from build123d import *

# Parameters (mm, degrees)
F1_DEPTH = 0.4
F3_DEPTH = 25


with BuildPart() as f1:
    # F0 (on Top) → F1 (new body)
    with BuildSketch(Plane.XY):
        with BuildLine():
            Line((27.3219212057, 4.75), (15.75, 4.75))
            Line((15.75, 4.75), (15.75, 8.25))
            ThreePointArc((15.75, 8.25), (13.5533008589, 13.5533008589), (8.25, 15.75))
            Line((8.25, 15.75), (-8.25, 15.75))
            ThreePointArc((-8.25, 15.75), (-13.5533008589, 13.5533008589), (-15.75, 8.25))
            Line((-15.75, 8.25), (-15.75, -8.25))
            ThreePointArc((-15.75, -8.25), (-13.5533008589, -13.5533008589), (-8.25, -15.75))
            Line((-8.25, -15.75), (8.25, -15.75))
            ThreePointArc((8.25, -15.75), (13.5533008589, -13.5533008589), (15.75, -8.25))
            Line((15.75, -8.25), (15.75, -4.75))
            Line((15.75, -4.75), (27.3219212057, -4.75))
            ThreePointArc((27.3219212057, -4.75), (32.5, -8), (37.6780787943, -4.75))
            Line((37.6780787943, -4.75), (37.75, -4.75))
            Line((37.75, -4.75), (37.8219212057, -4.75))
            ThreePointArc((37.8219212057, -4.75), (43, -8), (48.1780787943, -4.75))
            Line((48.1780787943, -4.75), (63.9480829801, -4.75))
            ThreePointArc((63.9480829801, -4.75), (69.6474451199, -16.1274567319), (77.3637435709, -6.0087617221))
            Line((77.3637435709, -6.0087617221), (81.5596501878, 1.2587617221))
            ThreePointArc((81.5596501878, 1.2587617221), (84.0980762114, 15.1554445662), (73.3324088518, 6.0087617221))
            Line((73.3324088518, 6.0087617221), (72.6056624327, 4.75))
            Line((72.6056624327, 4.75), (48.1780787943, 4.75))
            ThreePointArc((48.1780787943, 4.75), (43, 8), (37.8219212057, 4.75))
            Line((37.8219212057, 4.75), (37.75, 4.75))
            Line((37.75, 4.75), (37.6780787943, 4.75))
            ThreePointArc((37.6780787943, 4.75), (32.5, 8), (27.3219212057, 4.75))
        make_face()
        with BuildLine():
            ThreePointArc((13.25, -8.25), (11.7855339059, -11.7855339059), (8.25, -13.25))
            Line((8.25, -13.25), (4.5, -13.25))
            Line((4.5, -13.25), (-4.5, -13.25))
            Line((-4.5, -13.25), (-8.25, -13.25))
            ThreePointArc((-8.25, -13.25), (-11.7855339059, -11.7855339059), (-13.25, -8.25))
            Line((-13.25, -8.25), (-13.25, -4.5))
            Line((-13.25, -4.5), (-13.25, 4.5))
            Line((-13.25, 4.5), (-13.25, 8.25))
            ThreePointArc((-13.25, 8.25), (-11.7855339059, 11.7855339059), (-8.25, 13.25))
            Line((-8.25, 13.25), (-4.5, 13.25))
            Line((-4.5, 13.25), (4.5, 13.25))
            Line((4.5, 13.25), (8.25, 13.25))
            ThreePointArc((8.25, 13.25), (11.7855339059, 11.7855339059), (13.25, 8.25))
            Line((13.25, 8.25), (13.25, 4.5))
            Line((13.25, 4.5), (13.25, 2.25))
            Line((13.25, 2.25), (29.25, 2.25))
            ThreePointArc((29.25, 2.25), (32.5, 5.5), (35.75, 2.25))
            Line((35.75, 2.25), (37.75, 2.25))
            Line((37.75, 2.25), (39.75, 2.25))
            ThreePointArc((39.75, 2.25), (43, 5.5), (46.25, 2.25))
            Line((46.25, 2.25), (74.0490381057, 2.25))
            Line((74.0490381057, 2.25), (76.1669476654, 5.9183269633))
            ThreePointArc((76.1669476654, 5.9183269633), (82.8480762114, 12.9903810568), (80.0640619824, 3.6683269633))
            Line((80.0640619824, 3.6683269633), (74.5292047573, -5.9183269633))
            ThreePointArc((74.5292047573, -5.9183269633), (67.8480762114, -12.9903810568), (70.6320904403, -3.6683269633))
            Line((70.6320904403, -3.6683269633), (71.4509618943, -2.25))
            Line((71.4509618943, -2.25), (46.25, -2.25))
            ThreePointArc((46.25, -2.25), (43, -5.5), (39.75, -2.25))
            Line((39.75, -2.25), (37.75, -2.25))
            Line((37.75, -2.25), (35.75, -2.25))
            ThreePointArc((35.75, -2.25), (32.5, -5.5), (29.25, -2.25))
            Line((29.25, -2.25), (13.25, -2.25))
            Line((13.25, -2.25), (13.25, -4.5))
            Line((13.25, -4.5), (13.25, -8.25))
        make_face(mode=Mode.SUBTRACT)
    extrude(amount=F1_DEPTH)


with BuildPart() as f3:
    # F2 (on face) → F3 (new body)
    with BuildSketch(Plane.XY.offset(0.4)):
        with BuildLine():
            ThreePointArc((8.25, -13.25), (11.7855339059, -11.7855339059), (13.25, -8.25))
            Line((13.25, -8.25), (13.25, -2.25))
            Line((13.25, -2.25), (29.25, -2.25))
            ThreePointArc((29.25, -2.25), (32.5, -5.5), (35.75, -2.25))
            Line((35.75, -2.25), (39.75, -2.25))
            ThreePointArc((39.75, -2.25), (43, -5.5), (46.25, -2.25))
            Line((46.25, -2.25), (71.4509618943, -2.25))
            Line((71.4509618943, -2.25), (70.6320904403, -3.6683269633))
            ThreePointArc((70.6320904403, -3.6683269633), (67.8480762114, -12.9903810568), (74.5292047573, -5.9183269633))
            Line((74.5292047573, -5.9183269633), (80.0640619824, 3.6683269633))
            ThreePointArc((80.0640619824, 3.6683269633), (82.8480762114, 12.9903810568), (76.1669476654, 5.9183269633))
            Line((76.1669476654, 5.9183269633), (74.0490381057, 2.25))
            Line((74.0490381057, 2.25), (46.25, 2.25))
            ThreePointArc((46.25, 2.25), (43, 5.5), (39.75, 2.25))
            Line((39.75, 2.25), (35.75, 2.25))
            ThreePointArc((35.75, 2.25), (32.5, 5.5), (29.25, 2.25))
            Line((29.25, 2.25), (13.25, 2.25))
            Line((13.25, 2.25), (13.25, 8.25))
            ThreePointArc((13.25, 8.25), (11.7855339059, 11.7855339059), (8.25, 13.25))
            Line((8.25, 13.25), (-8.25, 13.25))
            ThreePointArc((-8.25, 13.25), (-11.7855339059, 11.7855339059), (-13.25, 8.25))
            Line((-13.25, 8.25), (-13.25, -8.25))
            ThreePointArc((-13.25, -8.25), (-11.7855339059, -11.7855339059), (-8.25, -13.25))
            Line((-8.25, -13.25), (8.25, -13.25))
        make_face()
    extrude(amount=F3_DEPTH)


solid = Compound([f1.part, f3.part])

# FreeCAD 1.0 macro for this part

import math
import FreeCAD as App
import Part
import Sketcher

V = App.Vector
Q = App.Units.Quantity

doc = App.newDocument("Part")
body = doc.addObject("PartDesign::Body", "Body")

sketch1 = body.newObject("Sketcher::SketchObject", "Sketch")
sketch1.AttachmentSupport = (doc.getObject("XY_Plane"), [""])
sketch1.MapMode = "FlatFace"
sketch1.addGeometry([
    Part.LineSegment(V(27.32, 4.75, 0), V(15.75, 4.75, 0)),
    Part.LineSegment(V(15.75, 4.75, 0), V(15.75, 8.25, 0)),
    Part.ArcOfCircle(Part.Circle(V(8.25, 8.25, 0), V(0, 0, 1), 7.5), math.radians(0), math.radians(90)),
    Part.LineSegment(V(8.25, 15.75, 0), V(-8.25, 15.75, 0)),
    Part.ArcOfCircle(Part.Circle(V(-8.25, 8.25, 0), V(0, 0, 1), 7.5), math.radians(90), math.radians(180)),
    Part.LineSegment(V(-15.75, 8.25, 0), V(-15.75, -8.25, 0)),
    Part.ArcOfCircle(Part.Circle(V(-8.25, -8.25, 0), V(0, 0, 1), 7.5), math.radians(180), math.radians(270)),
    Part.LineSegment(V(-8.25, -15.75, 0), V(8.25, -15.75, 0)),
    Part.ArcOfCircle(Part.Circle(V(8.25, -8.25, 0), V(0, 0, 1), 7.5), math.radians(-90), math.radians(0)),
    Part.LineSegment(V(15.75, -8.25, 0), V(15.75, -4.75, 0)),
    Part.LineSegment(V(15.75, -4.75, 0), V(27.32, -4.75, 0)),
    Part.ArcOfCircle(Part.Circle(V(32.5, -2.25, 0), V(0, 0, 1), 5.75), math.radians(-154), math.radians(-26)),
    Part.LineSegment(V(37.68, -4.75, 0), V(37.82, -4.75, 0)),
    Part.ArcOfCircle(Part.Circle(V(43, -2.25, 0), V(0, 0, 1), 5.75), math.radians(-154), math.radians(-26)),
    Part.LineSegment(V(48.18, -4.75, 0), V(63.95, -4.75, 0)),
    Part.ArcOfCircle(Part.Circle(V(70.35, -8.66, 0), V(0, 0, 1), 7.5), math.radians(149), math.radians(381)),
    Part.LineSegment(V(77.36, -6.01, 0), V(81.56, 1.26, 0)),
    Part.ArcOfCircle(Part.Circle(V(80.35, 8.66, 0), V(0, 0, 1), 7.5), math.radians(-81), math.radians(201)),
    Part.LineSegment(V(73.33, 6.01, 0), V(72.61, 4.75, 0)),
    Part.LineSegment(V(72.61, 4.75, 0), V(48.18, 4.75, 0)),
    Part.ArcOfCircle(Part.Circle(V(43, 2.25, 0), V(0, 0, 1), 5.75), math.radians(26), math.radians(154)),
    Part.LineSegment(V(37.82, 4.75, 0), V(37.68, 4.75, 0)),
    Part.ArcOfCircle(Part.Circle(V(32.5, 2.25, 0), V(0, 0, 1), 5.75), math.radians(26), math.radians(154)),
    Part.LineSegment(V(13.25, -2.25, 0), V(13.25, -8.25, 0)),
    Part.ArcOfCircle(Part.Circle(V(8.25, -8.25, 0), V(0, 0, 1), 5), math.radians(-90), math.radians(0)),
    Part.LineSegment(V(8.25, -13.25, 0), V(-8.25, -13.25, 0)),
    Part.ArcOfCircle(Part.Circle(V(-8.25, -8.25, 0), V(0, 0, 1), 5), math.radians(180), math.radians(270)),
    Part.LineSegment(V(-13.25, -8.25, 0), V(-13.25, 8.25, 0)),
    Part.ArcOfCircle(Part.Circle(V(-8.25, 8.25, 0), V(0, 0, 1), 5), math.radians(90), math.radians(180)),
    Part.LineSegment(V(-8.25, 13.25, 0), V(8.25, 13.25, 0)),
    Part.ArcOfCircle(Part.Circle(V(8.25, 8.25, 0), V(0, 0, 1), 5), math.radians(0), math.radians(90)),
    Part.LineSegment(V(13.25, 8.25, 0), V(13.25, 2.25, 0)),
    Part.LineSegment(V(13.25, 2.25, 0), V(29.25, 2.25, 0)),
    Part.ArcOfCircle(Part.Circle(V(32.5, 2.25, 0), V(0, 0, 1), 3.25), math.radians(0), math.radians(180)),
    Part.LineSegment(V(35.75, 2.25, 0), V(39.75, 2.25, 0)),
    Part.ArcOfCircle(Part.Circle(V(43, 2.25, 0), V(0, 0, 1), 3.25), math.radians(0), math.radians(180)),
    Part.LineSegment(V(46.25, 2.25, 0), V(74.05, 2.25, 0)),
    Part.LineSegment(V(74.05, 2.25, 0), V(76.17, 5.92, 0)),
    Part.ArcOfCircle(Part.Circle(V(80.35, 8.66, 0), V(0, 0, 1), 5), math.radians(-93), math.radians(213)),
    Part.LineSegment(V(80.06, 3.67, 0), V(74.53, -5.92, 0)),
    Part.ArcOfCircle(Part.Circle(V(70.35, -8.66, 0), V(0, 0, 1), 5), math.radians(87), math.radians(393)),
    Part.LineSegment(V(70.63, -3.67, 0), V(71.45, -2.25, 0)),
    Part.LineSegment(V(71.45, -2.25, 0), V(46.25, -2.25, 0)),
    Part.ArcOfCircle(Part.Circle(V(43, -2.25, 0), V(0, 0, 1), 3.25), math.radians(180), math.radians(360)),
    Part.LineSegment(V(39.75, -2.25, 0), V(35.75, -2.25, 0)),
    Part.ArcOfCircle(Part.Circle(V(32.5, -2.25, 0), V(0, 0, 1), 3.25), math.radians(180), math.radians(360)),
    Part.LineSegment(V(29.25, -2.25, 0), V(13.25, -2.25, 0)),
], False)
sketch1.addConstraint([
    Sketcher.Constraint("Coincident", 0, 2, 1, 1),
    Sketcher.Constraint("Tangent", 1, 2, 2, 1),
    Sketcher.Constraint("Tangent", 2, 2, 3, 1),
    Sketcher.Constraint("Tangent", 3, 2, 4, 1),
    Sketcher.Constraint("Tangent", 4, 2, 5, 1),
    Sketcher.Constraint("Tangent", 5, 2, 6, 1),
    Sketcher.Constraint("Tangent", 6, 2, 7, 1),
    Sketcher.Constraint("Tangent", 7, 2, 8, 1),
    Sketcher.Constraint("Tangent", 8, 2, 9, 1),
    Sketcher.Constraint("Coincident", 9, 2, 10, 1),
    Sketcher.Constraint("Coincident", 10, 2, 11, 1),
    Sketcher.Constraint("Coincident", 11, 2, 12, 1),
    Sketcher.Constraint("Coincident", 12, 2, 13, 1),
    Sketcher.Constraint("Coincident", 13, 2, 14, 1),
    Sketcher.Constraint("Coincident", 14, 2, 15, 1),
    Sketcher.Constraint("Coincident", 15, 2, 16, 1),
    Sketcher.Constraint("Coincident", 16, 2, 17, 1),
    Sketcher.Constraint("Coincident", 17, 2, 18, 1),
    Sketcher.Constraint("Coincident", 18, 2, 19, 1),
    Sketcher.Constraint("Coincident", 19, 2, 20, 1),
    Sketcher.Constraint("Coincident", 20, 2, 21, 1),
    Sketcher.Constraint("Coincident", 21, 2, 22, 1),
    Sketcher.Constraint("Coincident", 22, 2, 0, 1),
    Sketcher.Constraint("Tangent", 23, 2, 24, 2),
    Sketcher.Constraint("Tangent", 24, 1, 25, 1),
    Sketcher.Constraint("Tangent", 25, 2, 26, 2),
    Sketcher.Constraint("Tangent", 26, 1, 27, 1),
    Sketcher.Constraint("Tangent", 27, 2, 28, 2),
    Sketcher.Constraint("Tangent", 28, 1, 29, 1),
    Sketcher.Constraint("Tangent", 29, 2, 30, 2),
    Sketcher.Constraint("Tangent", 30, 1, 31, 1),
    Sketcher.Constraint("Coincident", 31, 2, 32, 1),
    Sketcher.Constraint("Coincident", 32, 2, 33, 2),
    Sketcher.Constraint("Coincident", 33, 1, 34, 1),
    Sketcher.Constraint("Coincident", 34, 2, 35, 2),
    Sketcher.Constraint("Coincident", 35, 1, 36, 1),
    Sketcher.Constraint("Coincident", 36, 2, 37, 1),
    Sketcher.Constraint("Coincident", 37, 2, 38, 2),
    Sketcher.Constraint("Coincident", 38, 1, 39, 1),
    Sketcher.Constraint("Coincident", 39, 2, 40, 2),
    Sketcher.Constraint("Coincident", 40, 1, 41, 1),
    Sketcher.Constraint("Coincident", 41, 2, 42, 1),
    Sketcher.Constraint("Coincident", 42, 2, 43, 2),
    Sketcher.Constraint("Coincident", 43, 1, 44, 1),
    Sketcher.Constraint("Coincident", 44, 2, 45, 2),
    Sketcher.Constraint("Coincident", 45, 1, 46, 1),
    Sketcher.Constraint("Coincident", 46, 2, 23, 1),
    Sketcher.Constraint("Horizontal", 0),
    Sketcher.Constraint("Vertical", 1),
    Sketcher.Constraint("Horizontal", 3),
    Sketcher.Constraint("Vertical", 5),
    Sketcher.Constraint("Horizontal", 7),
    Sketcher.Constraint("Vertical", 9),
    Sketcher.Constraint("Horizontal", 10),
    Sketcher.Constraint("Horizontal", 12),
    Sketcher.Constraint("Horizontal", 14),
    Sketcher.Constraint("Horizontal", 19),
    Sketcher.Constraint("Horizontal", 21),
    Sketcher.Constraint("Vertical", 23),
    Sketcher.Constraint("Horizontal", 25),
    Sketcher.Constraint("Vertical", 27),
    Sketcher.Constraint("Horizontal", 29),
    Sketcher.Constraint("Vertical", 31),
    Sketcher.Constraint("Horizontal", 32),
    Sketcher.Constraint("Horizontal", 34),
    Sketcher.Constraint("Horizontal", 36),
    Sketcher.Constraint("Horizontal", 42),
    Sketcher.Constraint("Horizontal", 44),
    Sketcher.Constraint("Horizontal", 46),
    Sketcher.Constraint("Coincident", 24, 3, 8, 3),
    Sketcher.Constraint("Coincident", 26, 3, 6, 3),
    Sketcher.Constraint("Coincident", 28, 3, 4, 3),
    Sketcher.Constraint("Coincident", 30, 3, 2, 3),
    Sketcher.Constraint("Coincident", 33, 3, 22, 3),
    Sketcher.Constraint("Coincident", 35, 3, 20, 3),
    Sketcher.Constraint("Coincident", 38, 3, 17, 3),
    Sketcher.Constraint("Coincident", 40, 3, 15, 3),
    Sketcher.Constraint("Coincident", 43, 3, 13, 3),
    Sketcher.Constraint("Coincident", 45, 3, 11, 3),
    Sketcher.Constraint("Equal", 2, 4),
    Sketcher.Constraint("Equal", 4, 6),
    Sketcher.Constraint("Equal", 6, 8),
    Sketcher.Constraint("Equal", 11, 13),
    Sketcher.Constraint("Equal", 8, 15),
    Sketcher.Constraint("Equal", 15, 17),
    Sketcher.Constraint("Equal", 13, 20),
    Sketcher.Constraint("Equal", 20, 22),
    Sketcher.Constraint("Equal", 33, 35),
    Sketcher.Constraint("Equal", 30, 38),
    Sketcher.Constraint("Equal", 38, 40),
    Sketcher.Constraint("Equal", 35, 43),
    Sketcher.Constraint("Equal", 43, 45),
    Sketcher.Constraint("Symmetric", 2, 3, 6, 3, -1, 1),
    Sketcher.Constraint("Symmetric", 13, 3, 20, 3, -1),
    Sketcher.Constraint("Symmetric", 11, 3, 22, 3, -1),
    Sketcher.Constraint("Symmetric", 0, 2, 9, 2, -1),
    Sketcher.Constraint("Parallel", 16, 18),
    Sketcher.Constraint("Parallel", 18, 37),
    Sketcher.Constraint("Parallel", 37, 39),
    Sketcher.Constraint("Parallel", 39, 41),
    Sketcher.Constraint("Horizontal", 11, 3, 13, 3),
    Sketcher.Constraint("Horizontal", 10, 2, 11, 2),
    Sketcher.Constraint("Horizontal", 12, 2, 13, 2),
    Sketcher.Constraint("Horizontal", 0, 2, 18, 2),
    Sketcher.Constraint("Horizontal", 19, 2, 20, 2),
    Sketcher.Constraint("Horizontal", 35, 3, 31, 2),
    Sketcher.Constraint("Horizontal", 32, 2, 33, 1),
    Sketcher.Constraint("Horizontal", 34, 2, 35, 1),
    Sketcher.Constraint("Horizontal", 45, 3, 41, 2),
    Sketcher.Constraint("Horizontal", 42, 2, 43, 1),
    Sketcher.Constraint("Horizontal", 44, 2, 45, 1),
    Sketcher.Constraint("Equal", 29, 5),
    Sketcher.Constraint("Radius", 24, Q("5 mm")),
    Sketcher.Constraint("Radius", 2, Q("7.5 mm")),
    Sketcher.Constraint("DistanceX", 32, 1, 32, 2, Q("16 mm")),
    Sketcher.Constraint("DistanceX", 34, 1, 34, 2, Q("4 mm")),
    Sketcher.Constraint("DistanceY", 23, 2, 23, 1, Q("6 mm")),
    Sketcher.Constraint("Angle", 16, Q("60 deg")),
    Sketcher.Constraint("Radius", 11, Q("5.75 mm")),
    Sketcher.Constraint("Radius", 33, Q("3.25 mm")),
    Sketcher.Constraint("DistanceX", 3, 2, 3, 1, Q("16.5 mm")),
    Sketcher.Constraint("DistanceY", 1, 1, 1, 2, Q("3.5 mm")),
    Sketcher.Constraint("DistanceX", 36, 1, 36, 2, Q("27.799038 mm")),
    Sketcher.Constraint("DistanceX", 42, 2, 42, 1, Q("25.200962 mm")),
    Sketcher.Constraint("Distance", 37, Q("4.235819 mm")),
    Sketcher.Constraint("DistanceX", 14, 1, 14, 2, Q("15.770004 mm")),
    Sketcher.Constraint("DistanceX", 19, 2, 19, 1, Q("24.427584 mm")),
    Sketcher.Constraint("DistanceY", 15, 2, -1, 1, Q("6.008762 mm")),
    Sketcher.Constraint("DistanceX", -1, 1, 16, 2, Q("81.55965 mm")),
    Sketcher.Constraint("DistanceY", -1, 1, 16, 2, Q("1.258762 mm")),
    Sketcher.Constraint("DistanceX", -1, 1, 38, 1, Q("80.064062 mm")),
])
pad1 = body.newObject("PartDesign::Pad", "Pad")
pad1.Profile = sketch1
pad1.Length = 0.4
body2 = doc.addObject("PartDesign::Body", "Body001")

sketch2 = body2.newObject("Sketcher::SketchObject", "Sketch001")
sketch2.AttachmentSupport = (doc.getObject("XY_Plane001"), [""])
sketch2.MapMode = "FlatFace"
sketch2.AttachmentOffset = App.Placement(V(0, 0, 0.4), App.Rotation())
sketch2.addGeometry([
    Part.ArcOfCircle(Part.Circle(V(8.2, -8.2, 0), V(0, 0, 1), 5), math.radians(-90), math.radians(0)),
    Part.LineSegment(V(13.2, -8.2, 0), V(13.2, -2.2, 0)),
    Part.LineSegment(V(13.2, -2.2, 0), V(29.2, -2.2, 0)),
    Part.ArcOfCircle(Part.Circle(V(32.5, -2.2, 0), V(0, 0, 1), 3.2), math.radians(180), math.radians(360)),
    Part.LineSegment(V(35.8, -2.2, 0), V(39.8, -2.2, 0)),
    Part.ArcOfCircle(Part.Circle(V(43, -2.2, 0), V(0, 0, 1), 3.2), math.radians(180), math.radians(360)),
    Part.LineSegment(V(46.2, -2.2, 0), V(71.5, -2.2, 0)),
    Part.LineSegment(V(71.5, -2.2, 0), V(70.6, -3.7, 0)),
    Part.ArcOfCircle(Part.Circle(V(70.3, -8.7, 0), V(0, 0, 1), 5), math.radians(87), math.radians(393)),
    Part.LineSegment(V(74.5, -5.9, 0), V(80.1, 3.7, 0)),
    Part.ArcOfCircle(Part.Circle(V(80.3, 8.7, 0), V(0, 0, 1), 5), math.radians(-93), math.radians(213)),
    Part.LineSegment(V(76.2, 5.9, 0), V(74, 2.2, 0)),
    Part.LineSegment(V(74, 2.2, 0), V(46.2, 2.2, 0)),
    Part.ArcOfCircle(Part.Circle(V(43, 2.2, 0), V(0, 0, 1), 3.2), math.radians(0), math.radians(180)),
    Part.LineSegment(V(39.8, 2.2, 0), V(35.8, 2.2, 0)),
    Part.ArcOfCircle(Part.Circle(V(32.5, 2.2, 0), V(0, 0, 1), 3.2), math.radians(0), math.radians(180)),
    Part.LineSegment(V(29.2, 2.2, 0), V(13.2, 2.2, 0)),
    Part.LineSegment(V(13.2, 2.2, 0), V(13.2, 8.2, 0)),
    Part.ArcOfCircle(Part.Circle(V(8.2, 8.2, 0), V(0, 0, 1), 5), math.radians(0), math.radians(90)),
    Part.LineSegment(V(8.2, 13.2, 0), V(-8.2, 13.2, 0)),
    Part.ArcOfCircle(Part.Circle(V(-8.2, 8.2, 0), V(0, 0, 1), 5), math.radians(90), math.radians(180)),
    Part.LineSegment(V(-13.2, 8.2, 0), V(-13.2, -8.2, 0)),
    Part.ArcOfCircle(Part.Circle(V(-8.2, -8.2, 0), V(0, 0, 1), 5), math.radians(180), math.radians(270)),
    Part.LineSegment(V(-8.2, -13.2, 0), V(8.2, -13.2, 0)),
], False)
sketch2.addConstraint([
    Sketcher.Constraint("Tangent", 0, 2, 1, 1),
    Sketcher.Constraint("Coincident", 1, 2, 2, 1),
    Sketcher.Constraint("Coincident", 2, 2, 3, 1),
    Sketcher.Constraint("Coincident", 3, 2, 4, 1),
    Sketcher.Constraint("Coincident", 4, 2, 5, 1),
    Sketcher.Constraint("Coincident", 5, 2, 6, 1),
    Sketcher.Constraint("Coincident", 6, 2, 7, 1),
    Sketcher.Constraint("Coincident", 7, 2, 8, 1),
    Sketcher.Constraint("Coincident", 8, 2, 9, 1),
    Sketcher.Constraint("Coincident", 9, 2, 10, 1),
    Sketcher.Constraint("Coincident", 10, 2, 11, 1),
    Sketcher.Constraint("Coincident", 11, 2, 12, 1),
    Sketcher.Constraint("Coincident", 12, 2, 13, 1),
    Sketcher.Constraint("Coincident", 13, 2, 14, 1),
    Sketcher.Constraint("Coincident", 14, 2, 15, 1),
    Sketcher.Constraint("Coincident", 15, 2, 16, 1),
    Sketcher.Constraint("Coincident", 16, 2, 17, 1),
    Sketcher.Constraint("Tangent", 17, 2, 18, 1),
    Sketcher.Constraint("Tangent", 18, 2, 19, 1),
    Sketcher.Constraint("Tangent", 19, 2, 20, 1),
    Sketcher.Constraint("Tangent", 20, 2, 21, 1),
    Sketcher.Constraint("Tangent", 21, 2, 22, 1),
    Sketcher.Constraint("Tangent", 22, 2, 23, 1),
    Sketcher.Constraint("Tangent", 23, 2, 0, 1),
    Sketcher.Constraint("Vertical", 1),
    Sketcher.Constraint("Horizontal", 2),
    Sketcher.Constraint("Horizontal", 4),
    Sketcher.Constraint("Horizontal", 6),
    Sketcher.Constraint("Horizontal", 12),
    Sketcher.Constraint("Horizontal", 14),
    Sketcher.Constraint("Horizontal", 16),
    Sketcher.Constraint("Vertical", 17),
    Sketcher.Constraint("Horizontal", 19),
    Sketcher.Constraint("Vertical", 21),
    Sketcher.Constraint("Horizontal", 23),
    Sketcher.Constraint("Equal", 3, 5),
    Sketcher.Constraint("Equal", 0, 8),
    Sketcher.Constraint("Equal", 8, 10),
    Sketcher.Constraint("Equal", 5, 13),
    Sketcher.Constraint("Equal", 13, 15),
    Sketcher.Constraint("Equal", 10, 18),
    Sketcher.Constraint("Equal", 18, 20),
    Sketcher.Constraint("Equal", 20, 22),
    Sketcher.Constraint("Symmetric", 0, 3, 20, 3, -1, 1),
    Sketcher.Constraint("Symmetric", 5, 3, 13, 3, -1),
    Sketcher.Constraint("Symmetric", 3, 3, 15, 3, -1),
    Sketcher.Constraint("Symmetric", 1, 2, 16, 2, -1),
    Sketcher.Constraint("Parallel", 7, 9),
    Sketcher.Constraint("Parallel", 9, 11),
    Sketcher.Constraint("Horizontal", 3, 3, 5, 3),
    Sketcher.Constraint("Horizontal", 5, 3, 1, 2),
    Sketcher.Constraint("Horizontal", 2, 2, 3, 2),
    Sketcher.Constraint("Horizontal", 4, 2, 5, 2),
    Sketcher.Constraint("Horizontal", 15, 3, 11, 2),
    Sketcher.Constraint("Horizontal", 12, 2, 13, 2),
    Sketcher.Constraint("Equal", 23, 21),
    Sketcher.Constraint("Radius", 0, Q("5 mm")),
    Sketcher.Constraint("DistanceX", 2, 1, 2, 2, Q("16 mm")),
    Sketcher.Constraint("DistanceX", 4, 1, 4, 2, Q("4 mm")),
    Sketcher.Constraint("DistanceY", 1, 1, 1, 2, Q("6 mm")),
    Sketcher.Constraint("Angle", 7, Q("-120 deg")),
    Sketcher.Constraint("Radius", 3, Q("3.25 mm")),
    Sketcher.Constraint("DistanceX", 19, 2, 19, 1, Q("16.5 mm")),
    Sketcher.Constraint("DistanceX", 8, 3, 10, 3, Q("10 mm")),
    Sketcher.Constraint("DistanceY", 8, 2, 7, 2, Q("2.25 mm")),
    Sketcher.Constraint("DistanceY", 9, 2, 10, 2, Q("2.25 mm")),
    Sketcher.Constraint("DistanceX", 6, 1, 6, 2, Q("25.200962 mm")),
    Sketcher.Constraint("DistanceX", 12, 2, 12, 1, Q("27.799038 mm")),
    Sketcher.Constraint("DistanceX", 6, 2, 9, 2, Q("8.6131 mm")),
    Sketcher.Constraint("Distance", 11, Q("4.235819 mm")),
])
pad2 = body2.newObject("PartDesign::Pad", "Pad001")
pad2.Profile = sketch2
pad2.Length = 25

doc.recompute()
